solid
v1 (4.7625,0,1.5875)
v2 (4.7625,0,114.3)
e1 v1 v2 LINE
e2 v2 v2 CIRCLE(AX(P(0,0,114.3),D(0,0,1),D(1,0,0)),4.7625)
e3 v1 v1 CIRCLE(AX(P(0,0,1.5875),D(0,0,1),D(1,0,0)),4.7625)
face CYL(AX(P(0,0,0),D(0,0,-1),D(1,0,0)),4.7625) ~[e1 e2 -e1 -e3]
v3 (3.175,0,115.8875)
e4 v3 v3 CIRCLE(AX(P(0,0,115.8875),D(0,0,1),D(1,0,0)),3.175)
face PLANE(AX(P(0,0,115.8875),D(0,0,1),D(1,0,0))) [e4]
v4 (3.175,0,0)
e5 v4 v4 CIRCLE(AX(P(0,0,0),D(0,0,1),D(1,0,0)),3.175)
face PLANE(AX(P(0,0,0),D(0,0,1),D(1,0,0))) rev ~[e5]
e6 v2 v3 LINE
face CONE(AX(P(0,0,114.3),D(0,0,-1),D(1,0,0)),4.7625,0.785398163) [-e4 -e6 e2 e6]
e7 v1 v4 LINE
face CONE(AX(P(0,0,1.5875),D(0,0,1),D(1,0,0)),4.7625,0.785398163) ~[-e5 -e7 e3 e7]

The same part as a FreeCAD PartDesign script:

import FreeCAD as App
import Part
import Sketcher

V = App.Vector
Q = App.Units.Quantity


def edges_at(feature, points):
    """Names of the edges that pass closest to the given points."""
    edges = feature.Shape.Edges
    near = lambda p: min(range(len(edges)), key=lambda i: edges[i].distToShape(Part.Vertex(*p))[0])
    return sorted({f"Edge{near(p) + 1}" for p in points})

doc = App.newDocument("Part")
body = doc.addObject("PartDesign::Body", "Body")

sketch1 = doc.addObject("Sketcher::SketchObject", "Sketch")
body.addObject(sketch1)
sketch1.AttachmentSupport = (doc.XY_Plane, [""])
sketch1.MapMode = "FlatFace"
sketch1.addGeometry(Part.Circle(V(0, 0, 0), V(0, 0, 1), 4.8), False)
sketch1.addConstraint(Sketcher.Constraint("Coincident", 0, 3, -1, 1))
sketch1.addConstraint(Sketcher.Constraint("Diameter", 0, Q("0.375 in")))
pad1 = doc.addObject("PartDesign::Pad", "Pad")
body.addObject(pad1)
pad1.Profile = sketch1
pad1.Length = Q("4.5625 in")
doc.recompute()

chamfer = doc.addObject("PartDesign::Chamfer", "Chamfer")
body.addObject(chamfer)
chamfer.Base = (pad1, edges_at(pad1, [(-4.763, 0, 0), (-4.763, 0, 115.888)]))
chamfer.Size = Q("0.0625 in")

doc.recompute()
